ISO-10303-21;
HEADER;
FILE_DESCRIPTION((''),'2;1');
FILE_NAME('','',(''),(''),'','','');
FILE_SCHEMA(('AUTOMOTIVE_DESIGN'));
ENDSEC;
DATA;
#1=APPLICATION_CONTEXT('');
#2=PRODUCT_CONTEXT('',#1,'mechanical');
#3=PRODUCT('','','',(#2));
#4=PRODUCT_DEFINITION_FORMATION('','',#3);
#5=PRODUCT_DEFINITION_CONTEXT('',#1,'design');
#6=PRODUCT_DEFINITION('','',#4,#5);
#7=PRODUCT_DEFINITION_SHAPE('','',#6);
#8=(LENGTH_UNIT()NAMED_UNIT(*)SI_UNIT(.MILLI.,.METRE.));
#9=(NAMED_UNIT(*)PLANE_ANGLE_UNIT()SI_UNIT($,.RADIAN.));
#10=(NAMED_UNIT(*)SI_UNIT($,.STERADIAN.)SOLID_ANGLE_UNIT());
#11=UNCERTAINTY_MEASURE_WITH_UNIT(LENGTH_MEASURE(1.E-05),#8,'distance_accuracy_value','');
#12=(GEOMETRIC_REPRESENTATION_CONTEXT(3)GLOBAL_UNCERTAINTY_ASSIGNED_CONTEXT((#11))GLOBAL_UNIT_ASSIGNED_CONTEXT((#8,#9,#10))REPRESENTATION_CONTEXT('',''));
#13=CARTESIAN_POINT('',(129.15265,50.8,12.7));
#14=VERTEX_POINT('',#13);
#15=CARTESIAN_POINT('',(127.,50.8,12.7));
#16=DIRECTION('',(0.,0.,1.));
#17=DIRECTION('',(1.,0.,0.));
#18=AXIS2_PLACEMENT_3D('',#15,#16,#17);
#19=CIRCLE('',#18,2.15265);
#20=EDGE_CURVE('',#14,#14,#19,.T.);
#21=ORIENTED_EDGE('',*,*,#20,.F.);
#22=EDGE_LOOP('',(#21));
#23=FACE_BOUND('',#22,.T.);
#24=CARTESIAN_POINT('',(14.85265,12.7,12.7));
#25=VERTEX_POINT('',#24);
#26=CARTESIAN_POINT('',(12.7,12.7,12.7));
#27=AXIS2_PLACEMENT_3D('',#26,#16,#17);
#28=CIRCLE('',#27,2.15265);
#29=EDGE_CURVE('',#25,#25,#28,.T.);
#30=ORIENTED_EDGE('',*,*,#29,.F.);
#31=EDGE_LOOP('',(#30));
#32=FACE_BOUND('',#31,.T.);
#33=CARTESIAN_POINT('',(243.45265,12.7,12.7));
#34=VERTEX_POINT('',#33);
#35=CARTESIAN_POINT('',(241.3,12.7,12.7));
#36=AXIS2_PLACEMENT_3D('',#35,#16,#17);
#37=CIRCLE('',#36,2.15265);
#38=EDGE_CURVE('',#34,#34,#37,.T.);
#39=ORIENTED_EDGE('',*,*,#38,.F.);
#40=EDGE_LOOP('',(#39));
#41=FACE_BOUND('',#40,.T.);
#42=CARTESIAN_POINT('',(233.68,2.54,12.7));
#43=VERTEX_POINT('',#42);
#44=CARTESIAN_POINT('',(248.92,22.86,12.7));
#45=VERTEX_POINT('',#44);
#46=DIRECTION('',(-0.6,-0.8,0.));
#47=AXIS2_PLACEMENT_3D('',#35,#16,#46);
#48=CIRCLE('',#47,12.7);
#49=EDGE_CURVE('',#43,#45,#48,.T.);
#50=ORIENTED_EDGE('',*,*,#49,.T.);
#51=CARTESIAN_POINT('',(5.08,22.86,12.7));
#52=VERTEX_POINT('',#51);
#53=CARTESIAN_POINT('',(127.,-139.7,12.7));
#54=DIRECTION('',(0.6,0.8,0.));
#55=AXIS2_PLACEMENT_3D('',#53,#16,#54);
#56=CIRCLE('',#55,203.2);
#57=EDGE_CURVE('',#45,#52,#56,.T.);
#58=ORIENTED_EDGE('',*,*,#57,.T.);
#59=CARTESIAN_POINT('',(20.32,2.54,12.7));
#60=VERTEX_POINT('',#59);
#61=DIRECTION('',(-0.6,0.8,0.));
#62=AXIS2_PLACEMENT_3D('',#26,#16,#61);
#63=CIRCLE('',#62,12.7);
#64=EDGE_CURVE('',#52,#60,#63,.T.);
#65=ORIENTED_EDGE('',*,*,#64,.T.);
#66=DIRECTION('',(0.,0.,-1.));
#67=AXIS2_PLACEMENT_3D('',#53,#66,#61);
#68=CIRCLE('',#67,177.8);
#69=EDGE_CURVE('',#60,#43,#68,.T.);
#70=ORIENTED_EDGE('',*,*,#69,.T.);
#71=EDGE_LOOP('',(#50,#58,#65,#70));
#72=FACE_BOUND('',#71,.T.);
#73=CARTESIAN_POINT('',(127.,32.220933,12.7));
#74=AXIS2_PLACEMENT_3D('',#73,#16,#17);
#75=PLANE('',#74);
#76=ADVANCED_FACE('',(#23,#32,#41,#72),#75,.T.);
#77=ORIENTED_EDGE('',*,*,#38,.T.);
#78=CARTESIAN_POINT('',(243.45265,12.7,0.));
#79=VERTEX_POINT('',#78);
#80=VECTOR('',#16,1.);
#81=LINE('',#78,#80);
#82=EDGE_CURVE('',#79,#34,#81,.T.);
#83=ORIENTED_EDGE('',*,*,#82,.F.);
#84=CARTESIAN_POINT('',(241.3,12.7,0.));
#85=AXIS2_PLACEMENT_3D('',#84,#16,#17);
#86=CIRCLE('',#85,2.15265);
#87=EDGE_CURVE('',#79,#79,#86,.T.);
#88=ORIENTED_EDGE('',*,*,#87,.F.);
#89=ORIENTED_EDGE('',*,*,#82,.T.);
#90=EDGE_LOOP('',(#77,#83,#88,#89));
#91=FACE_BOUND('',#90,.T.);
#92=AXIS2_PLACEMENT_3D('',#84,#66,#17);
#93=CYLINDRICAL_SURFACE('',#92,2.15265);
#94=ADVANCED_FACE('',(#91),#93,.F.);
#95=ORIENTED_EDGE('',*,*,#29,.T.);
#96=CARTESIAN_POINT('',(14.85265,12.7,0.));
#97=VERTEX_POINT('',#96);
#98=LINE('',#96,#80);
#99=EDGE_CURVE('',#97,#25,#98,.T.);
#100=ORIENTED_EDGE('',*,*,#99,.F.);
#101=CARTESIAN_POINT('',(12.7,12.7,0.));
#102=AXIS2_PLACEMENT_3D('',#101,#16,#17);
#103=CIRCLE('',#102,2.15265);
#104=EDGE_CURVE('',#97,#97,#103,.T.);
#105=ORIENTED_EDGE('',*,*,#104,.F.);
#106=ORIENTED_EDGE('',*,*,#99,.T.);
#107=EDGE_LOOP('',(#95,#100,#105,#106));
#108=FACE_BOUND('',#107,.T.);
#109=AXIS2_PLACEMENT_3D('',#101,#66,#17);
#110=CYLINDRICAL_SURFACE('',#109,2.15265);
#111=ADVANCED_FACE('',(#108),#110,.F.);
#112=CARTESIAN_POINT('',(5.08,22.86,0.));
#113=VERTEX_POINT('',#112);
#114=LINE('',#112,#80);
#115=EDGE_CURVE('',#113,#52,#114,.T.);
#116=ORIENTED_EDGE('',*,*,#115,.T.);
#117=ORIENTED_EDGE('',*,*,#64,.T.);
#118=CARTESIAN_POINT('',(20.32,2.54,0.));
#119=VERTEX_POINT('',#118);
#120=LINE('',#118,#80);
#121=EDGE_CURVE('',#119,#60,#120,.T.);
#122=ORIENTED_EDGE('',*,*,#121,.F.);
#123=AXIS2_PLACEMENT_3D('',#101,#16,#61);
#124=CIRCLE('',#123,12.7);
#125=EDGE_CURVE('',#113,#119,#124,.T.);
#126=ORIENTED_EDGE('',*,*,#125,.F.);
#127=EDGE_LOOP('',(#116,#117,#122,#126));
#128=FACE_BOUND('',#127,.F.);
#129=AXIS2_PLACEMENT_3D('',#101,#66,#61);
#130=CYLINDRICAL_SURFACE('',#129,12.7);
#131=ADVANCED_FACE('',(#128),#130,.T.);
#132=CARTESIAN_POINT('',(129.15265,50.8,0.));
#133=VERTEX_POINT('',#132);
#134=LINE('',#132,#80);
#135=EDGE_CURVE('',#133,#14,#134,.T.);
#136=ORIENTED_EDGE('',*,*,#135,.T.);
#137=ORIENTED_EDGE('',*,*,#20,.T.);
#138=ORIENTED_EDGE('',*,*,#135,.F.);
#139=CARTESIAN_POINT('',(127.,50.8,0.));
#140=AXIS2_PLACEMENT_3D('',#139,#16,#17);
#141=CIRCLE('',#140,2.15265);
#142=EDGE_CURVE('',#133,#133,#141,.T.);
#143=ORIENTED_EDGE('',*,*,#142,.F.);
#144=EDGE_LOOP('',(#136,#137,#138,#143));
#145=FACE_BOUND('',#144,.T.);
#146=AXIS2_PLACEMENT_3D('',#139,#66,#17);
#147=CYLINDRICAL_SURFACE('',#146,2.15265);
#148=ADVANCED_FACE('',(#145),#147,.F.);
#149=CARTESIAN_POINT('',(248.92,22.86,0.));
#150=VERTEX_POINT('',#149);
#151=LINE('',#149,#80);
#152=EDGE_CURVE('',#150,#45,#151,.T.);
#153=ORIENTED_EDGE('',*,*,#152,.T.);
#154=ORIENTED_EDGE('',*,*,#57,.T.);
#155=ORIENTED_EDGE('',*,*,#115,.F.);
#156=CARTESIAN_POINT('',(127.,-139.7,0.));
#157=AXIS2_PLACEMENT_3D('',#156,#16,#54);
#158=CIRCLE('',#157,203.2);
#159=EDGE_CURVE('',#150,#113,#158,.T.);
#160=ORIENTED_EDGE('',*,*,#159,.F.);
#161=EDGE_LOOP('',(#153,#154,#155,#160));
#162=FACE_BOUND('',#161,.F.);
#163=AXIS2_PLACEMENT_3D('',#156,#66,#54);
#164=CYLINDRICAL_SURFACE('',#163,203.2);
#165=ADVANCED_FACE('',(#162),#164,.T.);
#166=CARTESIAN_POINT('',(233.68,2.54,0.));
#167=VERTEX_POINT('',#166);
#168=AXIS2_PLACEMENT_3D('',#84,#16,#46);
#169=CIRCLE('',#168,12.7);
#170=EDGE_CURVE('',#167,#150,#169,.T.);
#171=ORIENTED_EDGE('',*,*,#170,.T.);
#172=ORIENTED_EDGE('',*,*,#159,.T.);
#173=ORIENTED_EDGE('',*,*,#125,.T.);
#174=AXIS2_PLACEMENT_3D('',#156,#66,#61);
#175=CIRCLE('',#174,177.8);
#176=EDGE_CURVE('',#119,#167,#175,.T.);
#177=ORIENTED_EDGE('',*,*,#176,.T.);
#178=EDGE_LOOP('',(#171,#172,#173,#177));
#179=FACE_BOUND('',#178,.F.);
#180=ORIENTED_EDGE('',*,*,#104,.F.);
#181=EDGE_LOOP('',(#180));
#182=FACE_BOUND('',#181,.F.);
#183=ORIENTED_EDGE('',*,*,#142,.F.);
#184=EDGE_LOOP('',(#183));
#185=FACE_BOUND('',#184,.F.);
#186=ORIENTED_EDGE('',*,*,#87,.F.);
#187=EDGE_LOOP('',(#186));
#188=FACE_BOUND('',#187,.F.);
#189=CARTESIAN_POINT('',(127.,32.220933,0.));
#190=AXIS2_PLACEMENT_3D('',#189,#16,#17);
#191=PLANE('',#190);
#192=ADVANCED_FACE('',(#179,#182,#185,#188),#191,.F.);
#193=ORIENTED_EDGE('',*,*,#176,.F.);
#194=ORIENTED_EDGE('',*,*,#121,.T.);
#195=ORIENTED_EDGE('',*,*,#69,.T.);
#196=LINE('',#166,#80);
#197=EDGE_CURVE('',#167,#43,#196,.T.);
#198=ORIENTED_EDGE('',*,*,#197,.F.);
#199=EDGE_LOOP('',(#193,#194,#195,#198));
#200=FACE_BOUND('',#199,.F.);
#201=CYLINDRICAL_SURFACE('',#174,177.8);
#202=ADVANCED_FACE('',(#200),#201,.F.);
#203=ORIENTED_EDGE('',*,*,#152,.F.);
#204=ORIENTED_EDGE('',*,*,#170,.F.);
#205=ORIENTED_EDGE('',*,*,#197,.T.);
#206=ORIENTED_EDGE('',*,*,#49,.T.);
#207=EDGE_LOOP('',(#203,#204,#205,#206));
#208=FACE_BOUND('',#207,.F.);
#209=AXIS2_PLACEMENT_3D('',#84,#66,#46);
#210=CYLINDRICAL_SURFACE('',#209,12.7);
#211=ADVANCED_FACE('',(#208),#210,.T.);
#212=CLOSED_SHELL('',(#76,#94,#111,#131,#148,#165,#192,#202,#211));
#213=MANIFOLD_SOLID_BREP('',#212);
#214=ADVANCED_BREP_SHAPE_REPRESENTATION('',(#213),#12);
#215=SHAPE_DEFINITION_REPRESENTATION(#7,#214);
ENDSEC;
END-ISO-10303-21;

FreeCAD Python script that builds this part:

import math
import FreeCAD as App
import Part
import Sketcher
from FreeCAD import Vector
Q = App.Units.Quantity

doc = App.newDocument("Part")
params = doc.addObject("Spreadsheet::Sheet", "Params")
for row, (alias, value) in enumerate([
    ("sketch1_radius", "8 in"),
    ("sketch1_radius2", "7 in"),
    ("pad1_length", "0.5 in"),
], start=1):
    params.set(f"A{row}", alias)
    params.set(f"B{row}", "=" + value)
    params.setAlias(f"B{row}", alias)

body = doc.addObject("PartDesign::Body", "Body")

# Sketch on XY plane
sketch1 = doc.addObject("Sketcher::SketchObject", "Sketch")
body.addObject(sketch1)
sketch1.AttachmentSupport = (doc.XY_Plane, [""])
sketch1.MapMode = "FlatFace"
sketch1.addGeometry([
    Part.ArcOfCircle(Part.Circle(Vector(127, -139.7, 0), Vector(0, 0, 1), 203.2), math.radians(53), math.radians(127)),  # 0
    Part.ArcOfCircle(Part.Circle(Vector(12.7, 12.7, 0), Vector(0, 0, 1), 12.7), math.radians(127), math.radians(307)),  # 1
    Part.ArcOfCircle(Part.Circle(Vector(127, -139.7, 0), Vector(0, 0, 1), 177.8), math.radians(53), math.radians(127)),  # 2
    Part.ArcOfCircle(Part.Circle(Vector(241.3, 12.7, 0), Vector(0, 0, 1), 12.7), math.radians(-127), math.radians(53)),  # 3
    Part.Circle(Vector(12.7, 12.7, 0), Vector(0, 0, 1), 2.2),  # 4
    Part.Circle(Vector(241.3, 12.7, 0), Vector(0, 0, 1), 2.2),  # 5
    Part.Circle(Vector(127, 50.8, 0), Vector(0, 0, 1), 2.2),  # 6
], False)
sketch1.addConstraint([
    Sketcher.Constraint("Tangent", 0, 2, 1, 1),
    Sketcher.Constraint("Tangent", 1, 2, 2, 2),
    Sketcher.Constraint("Tangent", 2, 1, 3, 1),
    Sketcher.Constraint("Tangent", 3, 2, 0, 1),
    Sketcher.Constraint("Coincident", 2, 3, 0, 3),
    Sketcher.Constraint("Coincident", 4, 3, 1, 3),
    Sketcher.Constraint("Coincident", 5, 3, 3, 3),
    Sketcher.Constraint("Equal", 4, 5),
    Sketcher.Constraint("Equal", 5, 6),
    Sketcher.Constraint("Horizontal", 1, 3, 3, 3),
    Sketcher.Constraint("Vertical", 2, 3, 6, 3),
    Sketcher.Constraint("Radius", 0, Q("8 in")),
    Sketcher.Constraint("Radius", 2, Q("7 in")),
    Sketcher.Constraint("DistanceX", -1, 1, 0, 3, Q("5 in")),
    Sketcher.Constraint("DistanceY", -1, 1, 6, 3, Q("2 in")),
    Sketcher.Constraint("DistanceY", 0, 3, 1, 3, Q("6 in")),
    Sketcher.Constraint("Diameter", 4, Q("0.1695 in")),
    Sketcher.Constraint("DistanceY", 0, 3, -1, 1, Q("5.5 in")),
])
sketch1.setExpression("Constraints[11]", "Params.sketch1_radius")
sketch1.setExpression("Constraints[12]", "Params.sketch1_radius2")
pad1 = doc.addObject("PartDesign::Pad", "Pad")
body.addObject(pad1)
pad1.Profile = sketch1
pad1.setExpression("Length", "Params.pad1_length")

doc.recompute()
